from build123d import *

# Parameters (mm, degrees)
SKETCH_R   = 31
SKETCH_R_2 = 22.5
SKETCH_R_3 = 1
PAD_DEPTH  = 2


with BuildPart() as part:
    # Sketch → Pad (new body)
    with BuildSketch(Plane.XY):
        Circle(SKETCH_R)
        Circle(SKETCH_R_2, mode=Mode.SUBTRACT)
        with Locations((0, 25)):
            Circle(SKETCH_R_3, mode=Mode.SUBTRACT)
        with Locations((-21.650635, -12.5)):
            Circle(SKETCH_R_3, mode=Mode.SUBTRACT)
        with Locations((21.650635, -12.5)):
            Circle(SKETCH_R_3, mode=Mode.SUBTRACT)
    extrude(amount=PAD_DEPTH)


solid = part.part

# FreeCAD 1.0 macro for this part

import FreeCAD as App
import Part
import Sketcher

doc = App.newDocument("Part")
body = doc.addObject("PartDesign::Body", "Body")

sketch1 = doc.addObject("Sketcher::SketchObject", "Sketch")
body.addObject(sketch1)
sketch1.AttachmentSupport = (doc.XY_Plane, [""])
sketch1.MapMode = "FlatFace"
sketch1.addGeometry(Part.Circle(App.Vector(0, 0, 0), App.Vector(0, 0, 1), 31), False)
sketch1.addGeometry(Part.Circle(App.Vector(-21.650635, -12.5, 0), App.Vector(0, 0, 1), 1), False)
sketch1.addGeometry(Part.Circle(App.Vector(21.650635, -12.5, 0), App.Vector(0, 0, 1), 1), False)
sketch1.addGeometry(Part.Circle(App.Vector(0, 0, 0), App.Vector(0, 0, 1), 22.5), False)
sketch1.addGeometry(Part.Circle(App.Vector(0, 25, 0), App.Vector(0, 0, 1), 1), False)
sketch1.addConstraint(Sketcher.Constraint("Coincident", 0, 3, -1, 1))
sketch1.addConstraint(Sketcher.Constraint("Coincident", 3, 3, -1, 1))
sketch1.addConstraint(Sketcher.Constraint("Equal", 1, 2))
sketch1.addConstraint(Sketcher.Constraint("Equal", 2, 4))
sketch1.addConstraint(Sketcher.Constraint("Symmetric", 1, 3, 2, 3, -2))
sketch1.addConstraint(Sketcher.Constraint("PointOnObject", 4, 3, -2))
sketch1.addConstraint(Sketcher.Constraint("Diameter", 0, 62.0))
sketch1.addConstraint(Sketcher.Constraint("Diameter", 1, 2.0))
sketch1.addConstraint(Sketcher.Constraint("Diameter", 3, 45.0))
sketch1.addConstraint(Sketcher.Constraint("DistanceY", -1, 1, 4, 3, 25.0))
sketch1.addConstraint(Sketcher.Constraint("DistanceY", 1, 3, -1, 1, 12.5))
sketch1.addConstraint(Sketcher.Constraint("DistanceX", 1, 3, 2, 3, 43.30127))
pad1 = doc.addObject("PartDesign::Pad", "Pad")
body.addObject(pad1)
pad1.Profile = sketch1
pad1.Length = 2

doc.recompute()
